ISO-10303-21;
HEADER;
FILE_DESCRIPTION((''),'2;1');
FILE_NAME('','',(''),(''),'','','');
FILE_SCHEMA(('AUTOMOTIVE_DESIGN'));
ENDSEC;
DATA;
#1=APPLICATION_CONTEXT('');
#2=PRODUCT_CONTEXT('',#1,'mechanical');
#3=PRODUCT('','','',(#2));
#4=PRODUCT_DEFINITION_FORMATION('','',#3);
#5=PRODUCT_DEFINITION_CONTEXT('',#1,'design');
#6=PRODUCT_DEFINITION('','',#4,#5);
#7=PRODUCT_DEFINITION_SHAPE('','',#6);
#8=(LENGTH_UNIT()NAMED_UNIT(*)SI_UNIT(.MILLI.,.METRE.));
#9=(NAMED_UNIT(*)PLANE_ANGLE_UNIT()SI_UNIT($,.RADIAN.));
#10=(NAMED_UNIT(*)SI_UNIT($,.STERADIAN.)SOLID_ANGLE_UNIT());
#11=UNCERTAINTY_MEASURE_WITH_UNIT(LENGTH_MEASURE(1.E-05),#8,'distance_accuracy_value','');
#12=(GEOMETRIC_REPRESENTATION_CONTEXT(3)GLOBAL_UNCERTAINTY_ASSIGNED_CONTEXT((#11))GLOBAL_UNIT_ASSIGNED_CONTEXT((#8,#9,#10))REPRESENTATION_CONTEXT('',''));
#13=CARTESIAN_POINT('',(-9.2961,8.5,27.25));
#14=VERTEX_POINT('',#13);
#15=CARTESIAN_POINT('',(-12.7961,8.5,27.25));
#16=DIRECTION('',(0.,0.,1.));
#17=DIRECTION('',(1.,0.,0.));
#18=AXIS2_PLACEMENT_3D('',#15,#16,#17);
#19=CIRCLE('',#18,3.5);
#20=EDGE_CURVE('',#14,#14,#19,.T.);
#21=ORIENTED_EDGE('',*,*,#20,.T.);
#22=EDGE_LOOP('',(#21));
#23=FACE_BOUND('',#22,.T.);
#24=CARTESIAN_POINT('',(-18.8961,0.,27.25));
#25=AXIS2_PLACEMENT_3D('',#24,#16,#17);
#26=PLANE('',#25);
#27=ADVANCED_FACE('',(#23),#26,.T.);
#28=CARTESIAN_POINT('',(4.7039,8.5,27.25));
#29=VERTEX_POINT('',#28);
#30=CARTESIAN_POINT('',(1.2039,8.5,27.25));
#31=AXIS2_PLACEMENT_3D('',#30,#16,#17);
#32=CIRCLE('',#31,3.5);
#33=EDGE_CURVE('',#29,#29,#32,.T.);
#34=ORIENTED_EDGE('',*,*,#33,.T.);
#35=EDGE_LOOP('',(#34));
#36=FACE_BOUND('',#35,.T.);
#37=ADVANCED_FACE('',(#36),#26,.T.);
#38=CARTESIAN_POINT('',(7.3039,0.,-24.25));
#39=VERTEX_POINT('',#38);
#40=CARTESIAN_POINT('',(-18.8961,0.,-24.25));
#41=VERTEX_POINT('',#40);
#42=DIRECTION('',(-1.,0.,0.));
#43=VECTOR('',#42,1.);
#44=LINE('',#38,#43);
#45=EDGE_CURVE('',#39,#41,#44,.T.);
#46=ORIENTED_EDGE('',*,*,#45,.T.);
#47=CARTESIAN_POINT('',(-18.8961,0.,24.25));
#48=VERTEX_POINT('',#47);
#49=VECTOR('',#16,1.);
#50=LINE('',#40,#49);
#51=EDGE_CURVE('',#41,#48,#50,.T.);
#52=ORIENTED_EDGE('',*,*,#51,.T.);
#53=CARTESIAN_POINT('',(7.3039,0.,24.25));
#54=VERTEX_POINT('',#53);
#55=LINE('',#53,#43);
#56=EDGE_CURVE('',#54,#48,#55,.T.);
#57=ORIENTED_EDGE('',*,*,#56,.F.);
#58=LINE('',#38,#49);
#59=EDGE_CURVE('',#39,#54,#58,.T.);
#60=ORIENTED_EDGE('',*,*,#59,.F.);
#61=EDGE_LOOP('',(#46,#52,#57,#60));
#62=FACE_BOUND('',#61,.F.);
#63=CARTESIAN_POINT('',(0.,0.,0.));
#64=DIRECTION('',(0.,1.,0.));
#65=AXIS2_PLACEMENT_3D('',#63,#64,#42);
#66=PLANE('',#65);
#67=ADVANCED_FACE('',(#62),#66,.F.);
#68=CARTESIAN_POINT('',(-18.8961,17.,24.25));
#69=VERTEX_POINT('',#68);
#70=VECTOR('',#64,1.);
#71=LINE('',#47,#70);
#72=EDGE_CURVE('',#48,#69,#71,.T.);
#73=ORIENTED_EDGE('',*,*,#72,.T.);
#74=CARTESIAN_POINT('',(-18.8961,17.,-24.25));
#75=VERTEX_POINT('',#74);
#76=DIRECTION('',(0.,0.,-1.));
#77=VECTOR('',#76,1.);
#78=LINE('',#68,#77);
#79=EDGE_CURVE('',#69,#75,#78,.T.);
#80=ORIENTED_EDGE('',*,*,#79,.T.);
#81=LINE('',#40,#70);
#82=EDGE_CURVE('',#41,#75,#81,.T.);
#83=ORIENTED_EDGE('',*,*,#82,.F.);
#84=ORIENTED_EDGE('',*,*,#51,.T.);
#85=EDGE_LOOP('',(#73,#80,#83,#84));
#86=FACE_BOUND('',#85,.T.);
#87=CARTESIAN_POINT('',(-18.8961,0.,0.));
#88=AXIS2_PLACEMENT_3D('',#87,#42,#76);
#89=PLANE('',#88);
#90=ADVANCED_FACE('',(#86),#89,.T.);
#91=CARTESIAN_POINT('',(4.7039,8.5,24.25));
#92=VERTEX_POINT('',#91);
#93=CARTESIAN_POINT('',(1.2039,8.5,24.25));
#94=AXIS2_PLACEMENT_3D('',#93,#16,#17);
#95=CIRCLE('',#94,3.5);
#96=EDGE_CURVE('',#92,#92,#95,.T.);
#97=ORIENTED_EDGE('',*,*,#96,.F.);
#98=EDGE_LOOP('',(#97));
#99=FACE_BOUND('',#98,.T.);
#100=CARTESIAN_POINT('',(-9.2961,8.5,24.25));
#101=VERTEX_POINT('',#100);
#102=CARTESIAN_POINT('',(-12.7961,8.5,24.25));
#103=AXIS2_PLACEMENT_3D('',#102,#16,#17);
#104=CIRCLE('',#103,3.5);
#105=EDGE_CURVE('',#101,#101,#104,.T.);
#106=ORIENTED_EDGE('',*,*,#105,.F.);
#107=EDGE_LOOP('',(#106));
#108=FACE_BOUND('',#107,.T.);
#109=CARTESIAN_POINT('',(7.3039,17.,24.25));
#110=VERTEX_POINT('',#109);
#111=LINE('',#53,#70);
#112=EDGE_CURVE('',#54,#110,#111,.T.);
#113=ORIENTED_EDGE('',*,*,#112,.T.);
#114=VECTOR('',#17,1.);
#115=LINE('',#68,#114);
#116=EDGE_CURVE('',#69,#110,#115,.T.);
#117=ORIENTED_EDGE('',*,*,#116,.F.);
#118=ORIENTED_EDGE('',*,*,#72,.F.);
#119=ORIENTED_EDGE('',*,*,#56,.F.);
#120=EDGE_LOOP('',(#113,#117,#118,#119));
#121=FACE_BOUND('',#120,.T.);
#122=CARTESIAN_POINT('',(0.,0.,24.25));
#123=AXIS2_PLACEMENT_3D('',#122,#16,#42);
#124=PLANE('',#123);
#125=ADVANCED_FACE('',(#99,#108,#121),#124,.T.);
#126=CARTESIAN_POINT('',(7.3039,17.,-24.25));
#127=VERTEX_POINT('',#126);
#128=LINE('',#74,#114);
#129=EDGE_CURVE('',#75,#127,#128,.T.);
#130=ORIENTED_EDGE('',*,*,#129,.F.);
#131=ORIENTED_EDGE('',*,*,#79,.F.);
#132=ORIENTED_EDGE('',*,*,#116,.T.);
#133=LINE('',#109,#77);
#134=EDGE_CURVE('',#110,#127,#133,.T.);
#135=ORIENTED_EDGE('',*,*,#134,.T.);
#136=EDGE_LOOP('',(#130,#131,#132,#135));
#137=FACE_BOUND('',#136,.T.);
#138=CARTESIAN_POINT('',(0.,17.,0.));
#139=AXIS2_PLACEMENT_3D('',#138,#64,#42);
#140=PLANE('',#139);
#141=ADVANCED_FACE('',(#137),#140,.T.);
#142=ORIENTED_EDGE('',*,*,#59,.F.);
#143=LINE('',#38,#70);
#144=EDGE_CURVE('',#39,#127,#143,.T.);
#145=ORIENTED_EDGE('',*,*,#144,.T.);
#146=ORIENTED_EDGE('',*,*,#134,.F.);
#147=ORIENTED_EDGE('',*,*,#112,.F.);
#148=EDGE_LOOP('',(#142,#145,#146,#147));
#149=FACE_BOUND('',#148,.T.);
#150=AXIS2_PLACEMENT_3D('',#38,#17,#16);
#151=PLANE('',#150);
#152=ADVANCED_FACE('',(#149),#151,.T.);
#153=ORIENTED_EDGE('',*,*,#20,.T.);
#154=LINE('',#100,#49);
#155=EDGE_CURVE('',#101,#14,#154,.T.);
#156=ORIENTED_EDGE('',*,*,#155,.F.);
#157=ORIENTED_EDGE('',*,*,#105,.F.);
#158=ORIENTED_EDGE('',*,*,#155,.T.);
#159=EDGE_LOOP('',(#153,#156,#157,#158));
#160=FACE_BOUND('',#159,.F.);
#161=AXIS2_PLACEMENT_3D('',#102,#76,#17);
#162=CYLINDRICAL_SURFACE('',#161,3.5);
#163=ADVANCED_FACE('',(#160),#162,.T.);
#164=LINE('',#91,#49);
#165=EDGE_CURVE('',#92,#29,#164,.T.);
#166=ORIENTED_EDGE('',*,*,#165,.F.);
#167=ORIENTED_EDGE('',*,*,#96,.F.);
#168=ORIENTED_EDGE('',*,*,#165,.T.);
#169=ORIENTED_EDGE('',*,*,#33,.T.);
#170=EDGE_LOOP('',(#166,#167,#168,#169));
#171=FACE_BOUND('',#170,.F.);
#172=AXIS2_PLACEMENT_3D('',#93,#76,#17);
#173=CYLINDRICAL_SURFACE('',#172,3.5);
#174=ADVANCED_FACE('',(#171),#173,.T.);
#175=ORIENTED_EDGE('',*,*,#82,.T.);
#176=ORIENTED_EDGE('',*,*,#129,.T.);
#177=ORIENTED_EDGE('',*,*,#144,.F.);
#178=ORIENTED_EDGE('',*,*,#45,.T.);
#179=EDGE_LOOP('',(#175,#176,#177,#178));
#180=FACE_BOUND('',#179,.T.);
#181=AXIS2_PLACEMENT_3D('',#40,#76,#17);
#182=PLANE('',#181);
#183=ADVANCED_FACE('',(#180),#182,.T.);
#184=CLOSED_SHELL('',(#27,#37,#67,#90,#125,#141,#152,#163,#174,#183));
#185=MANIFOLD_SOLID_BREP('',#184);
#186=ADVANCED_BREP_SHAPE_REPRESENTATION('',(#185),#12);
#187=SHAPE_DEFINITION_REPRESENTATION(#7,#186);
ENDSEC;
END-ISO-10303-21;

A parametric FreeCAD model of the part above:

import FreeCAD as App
import Part
import Sketcher
Q = App.Units.Quantity

doc = App.newDocument("Part")
params = doc.addObject("Spreadsheet::Sheet", "Params")
for row, (alias, value) in enumerate([
    ("sketch1_width", "26.2 mm"),
    ("sketch1_height", "48.5 mm"),
    ("pad1_length", "17 mm"),
    ("sketch2_diameter", "7 mm"),
    ("pad2_length", "3 mm"),
], start=1):
    params.set(f"A{row}", alias)
    params.set(f"B{row}", "=" + value)
    params.setAlias(f"B{row}", alias)

body = doc.addObject("PartDesign::Body", "Body")

sketch1 = body.newObject("Sketcher::SketchObject", "Sketch")
sketch1.AttachmentSupport = (doc.getObject("XZ_Plane"), [""])
sketch1.MapMode = "FlatFace"
sketch1.addGeometry([
    Part.LineSegment(App.Vector(-19, -24, 0), App.Vector(-19, 24, 0)),
    Part.LineSegment(App.Vector(-19, 24, 0), App.Vector(7, 24, 0)),
    Part.LineSegment(App.Vector(7, 24, 0), App.Vector(7, -24, 0)),
    Part.LineSegment(App.Vector(7, -24, 0), App.Vector(-19, -24, 0)),
], False)
sketch1.addConstraint([
    Sketcher.Constraint("Coincident", 0, 2, 1, 1),
    Sketcher.Constraint("Coincident", 1, 2, 2, 1),
    Sketcher.Constraint("Coincident", 2, 2, 3, 1),
    Sketcher.Constraint("Coincident", 3, 2, 0, 1),
    Sketcher.Constraint("Vertical", 0),
    Sketcher.Constraint("Horizontal", 1),
    Sketcher.Constraint("Vertical", 2),
    Sketcher.Constraint("Horizontal", 3),
    Sketcher.Constraint("DistanceX", 1, 1, 1, 2, Q("26.2 mm")),
    Sketcher.Constraint("DistanceY", 0, 1, 0, 2, Q("48.5 mm")),
    Sketcher.Constraint("DistanceY", -1, 1, 0, 2, Q("24.25 mm")),
    Sketcher.Constraint("DistanceX", 0, 2, -1, 1, Q("18.896 mm")),
])
sketch1.setExpression("Constraints[8]", "Params.sketch1_width")
sketch1.setExpression("Constraints[9]", "Params.sketch1_height")
pad1 = body.newObject("PartDesign::Pad", "Pad")
pad1.Profile = sketch1
pad1.setExpression("Length", "Params.pad1_length")
pad1.Reversed = True

sketch2 = body.newObject("Sketcher::SketchObject", "Sketch001")
sketch2.AttachmentSupport = (doc.getObject("XY_Plane"), [""])
sketch2.MapMode = "FlatFace"
sketch2.AttachmentOffset = App.Placement(App.Vector(0, 0, 24.25), App.Rotation())
sketch2.addGeometry([
    Part.Circle(App.Vector(-12.8, 8.5, 0), App.Vector(0, 0, 1), 3.5),
    Part.Circle(App.Vector(1.2, 8.5, 0), App.Vector(0, 0, 1), 3.5),
], False)
sketch2.addConstraint([
    Sketcher.Constraint("Equal", 0, 1),
    Sketcher.Constraint("Horizontal", 0, 3, 1, 3),
    Sketcher.Constraint("Diameter", 0, Q("7 mm")),
    Sketcher.Constraint("DistanceY", -1, 1, 0, 3, Q("8.5 mm")),
    Sketcher.Constraint("DistanceX", 0, 3, 1, 3, Q("14 mm")),
    Sketcher.Constraint("DistanceX", 0, 3, -1, 1, Q("12.796 mm")),
])
sketch2.setExpression("Constraints[2]", "Params.sketch2_diameter")
pad2 = body.newObject("PartDesign::Pad", "Pad001")
pad2.Profile = sketch2
pad2.setExpression("Length", "Params.pad2_length")

doc.recompute()
